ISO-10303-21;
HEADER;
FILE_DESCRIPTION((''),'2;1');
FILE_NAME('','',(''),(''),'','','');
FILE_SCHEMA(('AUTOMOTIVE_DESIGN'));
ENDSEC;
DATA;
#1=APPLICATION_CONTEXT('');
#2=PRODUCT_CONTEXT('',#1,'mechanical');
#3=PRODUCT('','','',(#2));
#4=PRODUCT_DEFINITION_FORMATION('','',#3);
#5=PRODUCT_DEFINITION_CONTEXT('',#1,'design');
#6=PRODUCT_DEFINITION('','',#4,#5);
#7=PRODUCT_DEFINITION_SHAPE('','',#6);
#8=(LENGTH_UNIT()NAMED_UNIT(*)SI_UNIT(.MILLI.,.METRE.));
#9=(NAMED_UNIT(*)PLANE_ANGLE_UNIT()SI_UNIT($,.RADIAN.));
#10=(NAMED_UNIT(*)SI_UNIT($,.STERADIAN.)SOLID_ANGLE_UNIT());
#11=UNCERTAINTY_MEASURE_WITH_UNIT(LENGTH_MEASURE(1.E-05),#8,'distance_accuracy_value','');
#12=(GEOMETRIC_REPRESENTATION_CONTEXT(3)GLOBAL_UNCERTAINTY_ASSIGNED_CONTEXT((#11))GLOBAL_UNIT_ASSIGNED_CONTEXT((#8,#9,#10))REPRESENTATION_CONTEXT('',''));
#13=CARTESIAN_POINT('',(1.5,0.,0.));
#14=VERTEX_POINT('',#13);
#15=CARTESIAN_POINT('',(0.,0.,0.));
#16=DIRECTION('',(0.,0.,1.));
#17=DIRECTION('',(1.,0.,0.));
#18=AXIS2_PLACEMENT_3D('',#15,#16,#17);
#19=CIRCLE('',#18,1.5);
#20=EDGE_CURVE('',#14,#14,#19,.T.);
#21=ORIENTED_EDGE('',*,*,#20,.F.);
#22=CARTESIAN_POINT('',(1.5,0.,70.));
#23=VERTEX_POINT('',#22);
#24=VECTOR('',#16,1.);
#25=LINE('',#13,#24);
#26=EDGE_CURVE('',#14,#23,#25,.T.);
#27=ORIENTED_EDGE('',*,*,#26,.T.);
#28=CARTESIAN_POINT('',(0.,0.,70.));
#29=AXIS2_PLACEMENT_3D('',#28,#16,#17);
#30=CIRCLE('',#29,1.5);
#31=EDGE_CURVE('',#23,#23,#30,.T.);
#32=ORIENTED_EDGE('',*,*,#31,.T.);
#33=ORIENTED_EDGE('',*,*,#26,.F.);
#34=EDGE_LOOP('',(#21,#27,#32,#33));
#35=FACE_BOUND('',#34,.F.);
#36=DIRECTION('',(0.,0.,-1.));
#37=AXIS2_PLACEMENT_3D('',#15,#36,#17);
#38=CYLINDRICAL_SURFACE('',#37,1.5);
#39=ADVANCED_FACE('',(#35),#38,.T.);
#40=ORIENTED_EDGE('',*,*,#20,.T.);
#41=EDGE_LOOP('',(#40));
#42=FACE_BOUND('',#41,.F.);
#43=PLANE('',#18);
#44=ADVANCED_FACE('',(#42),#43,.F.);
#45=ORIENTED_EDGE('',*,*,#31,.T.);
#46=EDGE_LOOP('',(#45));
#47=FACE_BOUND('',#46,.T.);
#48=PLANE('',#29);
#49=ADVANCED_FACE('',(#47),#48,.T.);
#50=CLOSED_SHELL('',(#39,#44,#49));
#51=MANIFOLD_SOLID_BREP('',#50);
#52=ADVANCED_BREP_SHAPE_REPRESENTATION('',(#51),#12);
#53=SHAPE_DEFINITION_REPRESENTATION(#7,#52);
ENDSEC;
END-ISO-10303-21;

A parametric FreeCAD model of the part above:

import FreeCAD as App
import Part
import Sketcher

V = App.Vector

doc = App.newDocument("Part")
body = doc.addObject("PartDesign::Body", "Body")

# Sketch on XY plane
sketch1 = doc.addObject("Sketcher::SketchObject", "Sketch")
body.addObject(sketch1)
sketch1.AttachmentSupport = (doc.XY_Plane, [""])
sketch1.MapMode = "FlatFace"
sketch1.addGeometry(Part.Circle(V(0, 0, 0), V(0, 0, 1), 1.5), False)
sketch1.addConstraint([
    Sketcher.Constraint("Coincident", 0, 3, -1, 1),
    Sketcher.Constraint("Diameter", 0, 3.0),
])
pad1 = doc.addObject("PartDesign::Pad", "Pad")
body.addObject(pad1)
pad1.Profile = sketch1
pad1.Length = 70

doc.recompute()
